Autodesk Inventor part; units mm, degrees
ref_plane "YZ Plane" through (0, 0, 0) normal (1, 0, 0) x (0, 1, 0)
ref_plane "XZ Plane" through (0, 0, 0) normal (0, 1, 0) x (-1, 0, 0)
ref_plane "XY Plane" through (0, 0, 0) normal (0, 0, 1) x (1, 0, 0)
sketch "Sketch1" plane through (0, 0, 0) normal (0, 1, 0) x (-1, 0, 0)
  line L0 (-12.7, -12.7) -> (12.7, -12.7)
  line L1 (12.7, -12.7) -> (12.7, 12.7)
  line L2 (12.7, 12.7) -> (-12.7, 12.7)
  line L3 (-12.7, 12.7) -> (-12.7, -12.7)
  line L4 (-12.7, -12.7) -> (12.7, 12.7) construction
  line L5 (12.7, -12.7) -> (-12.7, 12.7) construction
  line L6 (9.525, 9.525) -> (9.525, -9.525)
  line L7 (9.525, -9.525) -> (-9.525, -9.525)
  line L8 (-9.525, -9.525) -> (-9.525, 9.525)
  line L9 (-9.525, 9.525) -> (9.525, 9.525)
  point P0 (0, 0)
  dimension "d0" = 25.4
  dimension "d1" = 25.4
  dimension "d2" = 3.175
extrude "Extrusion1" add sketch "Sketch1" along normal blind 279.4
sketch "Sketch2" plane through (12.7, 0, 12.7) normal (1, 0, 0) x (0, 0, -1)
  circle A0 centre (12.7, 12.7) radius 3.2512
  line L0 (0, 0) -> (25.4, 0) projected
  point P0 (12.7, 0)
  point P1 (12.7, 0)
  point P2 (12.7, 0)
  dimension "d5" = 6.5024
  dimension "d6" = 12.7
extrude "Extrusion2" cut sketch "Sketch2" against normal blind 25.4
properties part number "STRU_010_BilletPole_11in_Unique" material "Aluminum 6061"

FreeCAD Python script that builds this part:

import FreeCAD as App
import Part
import Sketcher
from FreeCAD import Vector
Q = App.Units.Quantity


def add_polygon(sketch, points):
    """Adds a closed chain of lines whose ends are joined by coincident constraints."""
    first, n = sketch.GeometryCount, len(points)
    for a, b in zip(points, points[1:] + points[:1]):
        sketch.addGeometry(Part.LineSegment(App.Vector(*a, 0), App.Vector(*b, 0)), False)
    for i in range(n):
        sketch.addConstraint(Sketcher.Constraint("Coincident", first + i, 2, first + (i + 1) % n, 1))

doc = App.newDocument("Part")
body = doc.addObject("PartDesign::Body", "Body")

# Sketch on XZ plane
sketch1 = body.newObject("Sketcher::SketchObject", "Sketch")
sketch1.AttachmentSupport = (doc.getObject("XZ_Plane"), [""])
sketch1.MapMode = "FlatFace"
add_polygon(sketch1, [(13, 13), (13, -13), (-13, -13), (-13, 13)])  # lines 0-3
add_polygon(sketch1, [(10, 10), (-10, 10), (-10, -10), (10, -10)])  # lines 4-7
sketch1.addConstraint([
    Sketcher.Constraint("Vertical", 0),
    Sketcher.Constraint("Horizontal", 1),
    Sketcher.Constraint("Vertical", 2),
    Sketcher.Constraint("Horizontal", 3),
    Sketcher.Constraint("Horizontal", 4),
    Sketcher.Constraint("Vertical", 5),
    Sketcher.Constraint("Horizontal", 6),
    Sketcher.Constraint("Vertical", 7),
    Sketcher.Constraint("Symmetric", 0, 2, 2, 2, -1, 1),
    Sketcher.Constraint("Symmetric", 4, 2, 6, 2, -1, 1),
    Sketcher.Constraint("Equal", 3, 0),
    Sketcher.Constraint("Equal", 6, 5),
    Sketcher.Constraint("DistanceX", 1, 2, 1, 1, Q("1 in")),
    Sketcher.Constraint("DistanceX", 2, 2, 4, 2, Q("0.125 in")),
])
pad1 = body.newObject("PartDesign::Pad", "Pad")
pad1.Profile = sketch1
pad1.Length = Q("11 in")
pad1.Reversed = True

# Sketch on YZ plane
sketch2 = body.newObject("Sketcher::SketchObject", "Sketch001")
sketch2.AttachmentSupport = (doc.getObject("YZ_Plane"), [""])
sketch2.MapMode = "FlatFace"
sketch2.AttachmentOffset = App.Placement(Vector(0, 0, 0.5 * 25.4), App.Rotation())
sketch2.addGeometry(Part.Circle(Vector(12.7, 0, 0), Vector(0, 0, 1), 3.3), False)
sketch2.addConstraint([
    Sketcher.Constraint("PointOnObject", 0, 3, -1),
    Sketcher.Constraint("Diameter", 0, Q("0.256 in")),
    Sketcher.Constraint("DistanceX", -1, 1, 0, 3, Q("0.5 in")),
])
pocket1 = body.newObject("PartDesign::Pocket", "Pocket")
pocket1.Profile = sketch2
pocket1.Length = Q("1 in")

doc.recompute()
